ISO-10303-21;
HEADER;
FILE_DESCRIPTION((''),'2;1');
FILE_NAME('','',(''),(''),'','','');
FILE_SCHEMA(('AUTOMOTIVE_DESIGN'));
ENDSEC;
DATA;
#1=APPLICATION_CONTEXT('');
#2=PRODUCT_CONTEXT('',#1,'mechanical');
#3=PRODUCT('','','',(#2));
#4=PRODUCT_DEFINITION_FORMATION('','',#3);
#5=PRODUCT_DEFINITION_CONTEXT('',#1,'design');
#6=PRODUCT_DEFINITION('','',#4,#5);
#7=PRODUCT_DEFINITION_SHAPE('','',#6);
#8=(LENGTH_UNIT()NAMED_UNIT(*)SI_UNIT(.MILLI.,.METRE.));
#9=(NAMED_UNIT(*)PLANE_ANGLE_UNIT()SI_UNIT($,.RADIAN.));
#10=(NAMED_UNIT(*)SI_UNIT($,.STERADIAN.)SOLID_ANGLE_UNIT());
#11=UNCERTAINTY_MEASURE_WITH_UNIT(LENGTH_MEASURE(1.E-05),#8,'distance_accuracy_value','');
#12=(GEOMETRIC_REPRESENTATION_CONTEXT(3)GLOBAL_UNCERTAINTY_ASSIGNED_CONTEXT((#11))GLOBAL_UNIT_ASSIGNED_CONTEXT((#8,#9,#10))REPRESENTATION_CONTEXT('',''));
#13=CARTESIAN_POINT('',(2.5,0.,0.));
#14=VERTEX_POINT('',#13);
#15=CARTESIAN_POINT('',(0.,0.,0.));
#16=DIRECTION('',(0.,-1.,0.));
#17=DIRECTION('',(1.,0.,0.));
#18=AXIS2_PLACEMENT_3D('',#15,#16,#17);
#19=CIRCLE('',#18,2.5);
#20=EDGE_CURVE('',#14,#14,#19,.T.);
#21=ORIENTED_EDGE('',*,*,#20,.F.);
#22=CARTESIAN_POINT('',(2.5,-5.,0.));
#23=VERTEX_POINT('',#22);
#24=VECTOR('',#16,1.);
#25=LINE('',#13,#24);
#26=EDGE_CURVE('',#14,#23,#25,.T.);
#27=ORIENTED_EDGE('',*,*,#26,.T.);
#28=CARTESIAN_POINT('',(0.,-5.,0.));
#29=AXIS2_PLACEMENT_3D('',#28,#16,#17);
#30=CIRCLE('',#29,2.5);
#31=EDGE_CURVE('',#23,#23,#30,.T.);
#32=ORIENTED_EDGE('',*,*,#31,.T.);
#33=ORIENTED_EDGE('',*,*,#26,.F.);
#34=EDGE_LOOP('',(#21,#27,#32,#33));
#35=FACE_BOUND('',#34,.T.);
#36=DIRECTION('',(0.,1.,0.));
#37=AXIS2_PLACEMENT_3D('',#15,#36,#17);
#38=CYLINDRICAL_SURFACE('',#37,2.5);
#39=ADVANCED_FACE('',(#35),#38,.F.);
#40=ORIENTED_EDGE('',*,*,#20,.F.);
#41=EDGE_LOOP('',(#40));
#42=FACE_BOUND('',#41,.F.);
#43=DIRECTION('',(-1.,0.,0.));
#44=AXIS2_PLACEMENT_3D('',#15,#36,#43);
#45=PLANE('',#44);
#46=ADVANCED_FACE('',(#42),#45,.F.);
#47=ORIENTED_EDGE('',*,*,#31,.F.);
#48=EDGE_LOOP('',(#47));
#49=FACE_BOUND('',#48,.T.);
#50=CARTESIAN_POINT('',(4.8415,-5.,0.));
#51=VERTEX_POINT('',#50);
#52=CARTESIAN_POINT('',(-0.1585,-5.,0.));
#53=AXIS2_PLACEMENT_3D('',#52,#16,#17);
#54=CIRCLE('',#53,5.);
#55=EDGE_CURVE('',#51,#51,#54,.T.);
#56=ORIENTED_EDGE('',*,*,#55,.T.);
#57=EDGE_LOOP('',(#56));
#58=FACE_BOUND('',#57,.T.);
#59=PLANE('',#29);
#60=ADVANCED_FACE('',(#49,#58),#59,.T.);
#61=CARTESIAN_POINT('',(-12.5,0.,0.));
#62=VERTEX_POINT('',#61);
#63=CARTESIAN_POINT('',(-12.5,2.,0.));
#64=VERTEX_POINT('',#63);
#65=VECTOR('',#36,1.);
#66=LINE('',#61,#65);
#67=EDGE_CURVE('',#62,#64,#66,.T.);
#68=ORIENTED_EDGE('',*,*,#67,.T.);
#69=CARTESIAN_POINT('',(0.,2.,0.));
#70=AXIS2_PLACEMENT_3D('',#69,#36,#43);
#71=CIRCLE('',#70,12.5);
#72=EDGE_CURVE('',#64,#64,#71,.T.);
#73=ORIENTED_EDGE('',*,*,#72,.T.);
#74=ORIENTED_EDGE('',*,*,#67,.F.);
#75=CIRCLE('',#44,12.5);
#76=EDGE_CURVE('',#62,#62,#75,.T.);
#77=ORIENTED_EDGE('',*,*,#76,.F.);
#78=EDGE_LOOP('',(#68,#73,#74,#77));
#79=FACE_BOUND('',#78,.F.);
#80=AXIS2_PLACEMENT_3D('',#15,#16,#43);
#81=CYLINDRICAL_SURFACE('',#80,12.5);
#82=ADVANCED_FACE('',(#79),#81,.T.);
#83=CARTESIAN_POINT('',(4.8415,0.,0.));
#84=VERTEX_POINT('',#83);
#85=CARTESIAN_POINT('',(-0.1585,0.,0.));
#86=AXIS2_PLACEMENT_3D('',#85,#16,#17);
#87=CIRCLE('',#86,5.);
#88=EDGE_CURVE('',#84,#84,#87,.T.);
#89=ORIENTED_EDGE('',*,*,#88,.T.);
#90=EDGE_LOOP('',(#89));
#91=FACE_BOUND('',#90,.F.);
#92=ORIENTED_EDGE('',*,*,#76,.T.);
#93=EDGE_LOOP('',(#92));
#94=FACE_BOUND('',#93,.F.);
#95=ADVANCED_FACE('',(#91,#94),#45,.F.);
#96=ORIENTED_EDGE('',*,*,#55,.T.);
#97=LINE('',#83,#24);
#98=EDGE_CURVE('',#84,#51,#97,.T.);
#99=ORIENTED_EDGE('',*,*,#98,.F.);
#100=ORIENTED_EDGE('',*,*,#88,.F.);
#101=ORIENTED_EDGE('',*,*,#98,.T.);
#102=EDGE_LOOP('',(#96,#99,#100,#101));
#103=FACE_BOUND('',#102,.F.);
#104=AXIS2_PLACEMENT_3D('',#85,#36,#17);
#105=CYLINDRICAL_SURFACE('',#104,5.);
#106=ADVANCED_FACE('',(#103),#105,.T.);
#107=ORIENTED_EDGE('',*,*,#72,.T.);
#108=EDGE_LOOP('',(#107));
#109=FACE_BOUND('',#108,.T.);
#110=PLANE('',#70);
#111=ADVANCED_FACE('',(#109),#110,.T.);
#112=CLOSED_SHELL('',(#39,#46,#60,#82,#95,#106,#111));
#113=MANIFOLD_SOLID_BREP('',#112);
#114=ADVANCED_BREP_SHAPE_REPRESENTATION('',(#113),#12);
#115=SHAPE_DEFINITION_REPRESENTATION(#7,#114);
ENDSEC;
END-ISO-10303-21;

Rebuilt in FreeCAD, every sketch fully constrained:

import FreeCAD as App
import Part
import Sketcher

V = App.Vector
Q = App.Units.Quantity

doc = App.newDocument("Part")
params = doc.addObject("Spreadsheet::Sheet", "Params")
for row, (alias, value) in enumerate([
    ("sketch1_diameter", "25 mm"),
    ("pad1_length", "2 mm"),
    ("sketch2_diameter", "10 mm"),
    ("sketch2_diameter2", "5 mm"),
    ("pad2_length", "5 mm"),
], start=1):
    params.set(f"A{row}", alias)
    params.set(f"B{row}", "=" + value)
    params.setAlias(f"B{row}", alias)

body = doc.addObject("PartDesign::Body", "Body")

sketch1 = body.newObject("Sketcher::SketchObject", "Sketch")
sketch1.AttachmentSupport = (doc.getObject("XZ_Plane"), [""])
sketch1.MapMode = "FlatFace"
sketch1.addGeometry(Part.Circle(V(0, 0, 0), V(0, 0, 1), 12.5), False)
sketch1.addConstraint(Sketcher.Constraint("Coincident", 0, 3, -1, 1))
sketch1.addConstraint(Sketcher.Constraint("Diameter", 0, Q("25 mm")))
sketch1.setExpression("Constraints[1]", "Params.sketch1_diameter")
pad1 = body.newObject("PartDesign::Pad", "Pad")
pad1.Profile = sketch1
pad1.setExpression("Length", "Params.pad1_length")
pad1.Reversed = True

sketch2 = body.newObject("Sketcher::SketchObject", "Sketch001")
sketch2.AttachmentSupport = (doc.getObject("XZ_Plane"), [""])
sketch2.MapMode = "FlatFace"
sketch2.addGeometry(Part.Circle(V(-0.1585, 0, 0), V(0, 0, 1), 5), False)
sketch2.addGeometry(Part.Circle(V(0, 0, 0), V(0, 0, 1), 2.5), False)
sketch2.addConstraint(Sketcher.Constraint("Coincident", 1, 3, -1, 1))
sketch2.addConstraint(Sketcher.Constraint("PointOnObject", 0, 3, -1))
sketch2.addConstraint(Sketcher.Constraint("Diameter", 0, Q("10 mm")))
sketch2.addConstraint(Sketcher.Constraint("Diameter", 1, Q("5 mm")))
sketch2.addConstraint(Sketcher.Constraint("DistanceX", 0, 3, -1, 1, Q("0.1585 mm")))
sketch2.setExpression("Constraints[2]", "Params.sketch2_diameter")
sketch2.setExpression("Constraints[3]", "Params.sketch2_diameter2")
pad2 = body.newObject("PartDesign::Pad", "Pad001")
pad2.Profile = sketch2
pad2.setExpression("Length", "Params.pad2_length")

doc.recompute()
